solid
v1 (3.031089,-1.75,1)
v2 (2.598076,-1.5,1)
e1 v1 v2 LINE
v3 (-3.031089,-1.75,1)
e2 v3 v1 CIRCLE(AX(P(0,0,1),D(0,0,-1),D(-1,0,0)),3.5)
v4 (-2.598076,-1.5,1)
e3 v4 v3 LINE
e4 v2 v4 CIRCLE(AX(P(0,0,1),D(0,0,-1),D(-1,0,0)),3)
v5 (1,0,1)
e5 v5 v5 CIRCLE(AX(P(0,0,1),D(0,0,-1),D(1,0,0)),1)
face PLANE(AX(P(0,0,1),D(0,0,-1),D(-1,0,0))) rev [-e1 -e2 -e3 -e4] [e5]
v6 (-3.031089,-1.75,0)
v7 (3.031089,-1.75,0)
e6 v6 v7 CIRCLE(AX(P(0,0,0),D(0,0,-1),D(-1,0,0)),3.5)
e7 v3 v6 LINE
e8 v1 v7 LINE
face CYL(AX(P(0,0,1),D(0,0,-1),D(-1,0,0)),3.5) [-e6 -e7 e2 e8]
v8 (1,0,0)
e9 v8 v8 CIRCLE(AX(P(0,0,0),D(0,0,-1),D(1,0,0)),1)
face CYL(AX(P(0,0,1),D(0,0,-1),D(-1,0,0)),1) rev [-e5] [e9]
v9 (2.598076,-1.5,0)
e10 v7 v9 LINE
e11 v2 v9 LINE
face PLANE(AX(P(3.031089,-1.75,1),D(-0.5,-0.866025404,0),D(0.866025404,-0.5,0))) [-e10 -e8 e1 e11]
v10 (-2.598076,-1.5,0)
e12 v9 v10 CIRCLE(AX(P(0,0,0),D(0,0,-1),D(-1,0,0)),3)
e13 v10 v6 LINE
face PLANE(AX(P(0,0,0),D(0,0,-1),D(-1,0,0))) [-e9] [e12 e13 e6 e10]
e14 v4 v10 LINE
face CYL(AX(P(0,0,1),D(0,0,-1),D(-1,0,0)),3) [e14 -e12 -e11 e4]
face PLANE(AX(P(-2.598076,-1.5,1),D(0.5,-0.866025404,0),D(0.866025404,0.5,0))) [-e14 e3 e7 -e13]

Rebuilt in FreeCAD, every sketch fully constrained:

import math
import FreeCAD as App
import Part
import Sketcher
from FreeCAD import Vector
Q = App.Units.Quantity

doc = App.newDocument("Part")
params = doc.addObject("Spreadsheet::Sheet", "Params")
for row, (alias, value) in enumerate([
    ("sketch1_diameter", "2 mm"),
    ("sketch1_radius", "3 mm"),
    ("sketch1_radius2", "3.5 mm"),
    ("pad1_length", "1 mm"),
], start=1):
    params.set(f"A{row}", alias)
    params.set(f"B{row}", "=" + value)
    params.setAlias(f"B{row}", alias)

body = doc.addObject("PartDesign::Body", "Body")

sketch1 = body.newObject("Sketcher::SketchObject", "Sketch")
sketch1.AttachmentSupport = (doc.getObject("XY_Plane"), [""])
sketch1.MapMode = "FlatFace"
sketch1.addGeometry([
    Part.LineSegment(Vector(3.031089, -1.75, 0), Vector(2.598076, -1.5, 0)),
    Part.ArcOfCircle(Part.Circle(Vector(0, 0, 0), Vector(0, 0, 1), 3), math.radians(-150), math.radians(-30)),
    Part.LineSegment(Vector(-2.598076, -1.5, 0), Vector(-3.031089, -1.75, 0)),
    Part.ArcOfCircle(Part.Circle(Vector(0, 0, 0), Vector(0, 0, 1), 3.5), math.radians(-30), math.radians(210)),
    Part.Circle(Vector(0, 0, 0), Vector(0, 0, 1), 1),
], False)
sketch1.addConstraint([
    Sketcher.Constraint("Coincident", 0, 2, 1, 2),
    Sketcher.Constraint("Coincident", 1, 1, 2, 1),
    Sketcher.Constraint("Coincident", 2, 2, 3, 2),
    Sketcher.Constraint("Coincident", 3, 1, 0, 1),
    Sketcher.Constraint("Coincident", 1, 3, -1, 1),
    Sketcher.Constraint("Coincident", 3, 3, -1, 1),
    Sketcher.Constraint("Coincident", 4, 3, -1, 1),
    Sketcher.Constraint("Horizontal", 0, 2, 1, 1),
    Sketcher.Constraint("Horizontal", 2, 2, 3, 1),
    Sketcher.Constraint("Diameter", 4, Q("2 mm")),
    Sketcher.Constraint("Radius", 1, Q("3 mm")),
    Sketcher.Constraint("Radius", 3, Q("3.5 mm")),
    Sketcher.Constraint("Angle", 0, Q("150 deg")),
    Sketcher.Constraint("DistanceY", 0, 2, -1, 1, Q("1.5 mm")),
])
sketch1.setExpression("Constraints[9]", "Params.sketch1_diameter")
sketch1.setExpression("Constraints[10]", "Params.sketch1_radius")
sketch1.setExpression("Constraints[11]", "Params.sketch1_radius2")
pad1 = body.newObject("PartDesign::Pad", "Pad")
pad1.Profile = sketch1
pad1.setExpression("Length", "Params.pad1_length")

doc.recompute()
